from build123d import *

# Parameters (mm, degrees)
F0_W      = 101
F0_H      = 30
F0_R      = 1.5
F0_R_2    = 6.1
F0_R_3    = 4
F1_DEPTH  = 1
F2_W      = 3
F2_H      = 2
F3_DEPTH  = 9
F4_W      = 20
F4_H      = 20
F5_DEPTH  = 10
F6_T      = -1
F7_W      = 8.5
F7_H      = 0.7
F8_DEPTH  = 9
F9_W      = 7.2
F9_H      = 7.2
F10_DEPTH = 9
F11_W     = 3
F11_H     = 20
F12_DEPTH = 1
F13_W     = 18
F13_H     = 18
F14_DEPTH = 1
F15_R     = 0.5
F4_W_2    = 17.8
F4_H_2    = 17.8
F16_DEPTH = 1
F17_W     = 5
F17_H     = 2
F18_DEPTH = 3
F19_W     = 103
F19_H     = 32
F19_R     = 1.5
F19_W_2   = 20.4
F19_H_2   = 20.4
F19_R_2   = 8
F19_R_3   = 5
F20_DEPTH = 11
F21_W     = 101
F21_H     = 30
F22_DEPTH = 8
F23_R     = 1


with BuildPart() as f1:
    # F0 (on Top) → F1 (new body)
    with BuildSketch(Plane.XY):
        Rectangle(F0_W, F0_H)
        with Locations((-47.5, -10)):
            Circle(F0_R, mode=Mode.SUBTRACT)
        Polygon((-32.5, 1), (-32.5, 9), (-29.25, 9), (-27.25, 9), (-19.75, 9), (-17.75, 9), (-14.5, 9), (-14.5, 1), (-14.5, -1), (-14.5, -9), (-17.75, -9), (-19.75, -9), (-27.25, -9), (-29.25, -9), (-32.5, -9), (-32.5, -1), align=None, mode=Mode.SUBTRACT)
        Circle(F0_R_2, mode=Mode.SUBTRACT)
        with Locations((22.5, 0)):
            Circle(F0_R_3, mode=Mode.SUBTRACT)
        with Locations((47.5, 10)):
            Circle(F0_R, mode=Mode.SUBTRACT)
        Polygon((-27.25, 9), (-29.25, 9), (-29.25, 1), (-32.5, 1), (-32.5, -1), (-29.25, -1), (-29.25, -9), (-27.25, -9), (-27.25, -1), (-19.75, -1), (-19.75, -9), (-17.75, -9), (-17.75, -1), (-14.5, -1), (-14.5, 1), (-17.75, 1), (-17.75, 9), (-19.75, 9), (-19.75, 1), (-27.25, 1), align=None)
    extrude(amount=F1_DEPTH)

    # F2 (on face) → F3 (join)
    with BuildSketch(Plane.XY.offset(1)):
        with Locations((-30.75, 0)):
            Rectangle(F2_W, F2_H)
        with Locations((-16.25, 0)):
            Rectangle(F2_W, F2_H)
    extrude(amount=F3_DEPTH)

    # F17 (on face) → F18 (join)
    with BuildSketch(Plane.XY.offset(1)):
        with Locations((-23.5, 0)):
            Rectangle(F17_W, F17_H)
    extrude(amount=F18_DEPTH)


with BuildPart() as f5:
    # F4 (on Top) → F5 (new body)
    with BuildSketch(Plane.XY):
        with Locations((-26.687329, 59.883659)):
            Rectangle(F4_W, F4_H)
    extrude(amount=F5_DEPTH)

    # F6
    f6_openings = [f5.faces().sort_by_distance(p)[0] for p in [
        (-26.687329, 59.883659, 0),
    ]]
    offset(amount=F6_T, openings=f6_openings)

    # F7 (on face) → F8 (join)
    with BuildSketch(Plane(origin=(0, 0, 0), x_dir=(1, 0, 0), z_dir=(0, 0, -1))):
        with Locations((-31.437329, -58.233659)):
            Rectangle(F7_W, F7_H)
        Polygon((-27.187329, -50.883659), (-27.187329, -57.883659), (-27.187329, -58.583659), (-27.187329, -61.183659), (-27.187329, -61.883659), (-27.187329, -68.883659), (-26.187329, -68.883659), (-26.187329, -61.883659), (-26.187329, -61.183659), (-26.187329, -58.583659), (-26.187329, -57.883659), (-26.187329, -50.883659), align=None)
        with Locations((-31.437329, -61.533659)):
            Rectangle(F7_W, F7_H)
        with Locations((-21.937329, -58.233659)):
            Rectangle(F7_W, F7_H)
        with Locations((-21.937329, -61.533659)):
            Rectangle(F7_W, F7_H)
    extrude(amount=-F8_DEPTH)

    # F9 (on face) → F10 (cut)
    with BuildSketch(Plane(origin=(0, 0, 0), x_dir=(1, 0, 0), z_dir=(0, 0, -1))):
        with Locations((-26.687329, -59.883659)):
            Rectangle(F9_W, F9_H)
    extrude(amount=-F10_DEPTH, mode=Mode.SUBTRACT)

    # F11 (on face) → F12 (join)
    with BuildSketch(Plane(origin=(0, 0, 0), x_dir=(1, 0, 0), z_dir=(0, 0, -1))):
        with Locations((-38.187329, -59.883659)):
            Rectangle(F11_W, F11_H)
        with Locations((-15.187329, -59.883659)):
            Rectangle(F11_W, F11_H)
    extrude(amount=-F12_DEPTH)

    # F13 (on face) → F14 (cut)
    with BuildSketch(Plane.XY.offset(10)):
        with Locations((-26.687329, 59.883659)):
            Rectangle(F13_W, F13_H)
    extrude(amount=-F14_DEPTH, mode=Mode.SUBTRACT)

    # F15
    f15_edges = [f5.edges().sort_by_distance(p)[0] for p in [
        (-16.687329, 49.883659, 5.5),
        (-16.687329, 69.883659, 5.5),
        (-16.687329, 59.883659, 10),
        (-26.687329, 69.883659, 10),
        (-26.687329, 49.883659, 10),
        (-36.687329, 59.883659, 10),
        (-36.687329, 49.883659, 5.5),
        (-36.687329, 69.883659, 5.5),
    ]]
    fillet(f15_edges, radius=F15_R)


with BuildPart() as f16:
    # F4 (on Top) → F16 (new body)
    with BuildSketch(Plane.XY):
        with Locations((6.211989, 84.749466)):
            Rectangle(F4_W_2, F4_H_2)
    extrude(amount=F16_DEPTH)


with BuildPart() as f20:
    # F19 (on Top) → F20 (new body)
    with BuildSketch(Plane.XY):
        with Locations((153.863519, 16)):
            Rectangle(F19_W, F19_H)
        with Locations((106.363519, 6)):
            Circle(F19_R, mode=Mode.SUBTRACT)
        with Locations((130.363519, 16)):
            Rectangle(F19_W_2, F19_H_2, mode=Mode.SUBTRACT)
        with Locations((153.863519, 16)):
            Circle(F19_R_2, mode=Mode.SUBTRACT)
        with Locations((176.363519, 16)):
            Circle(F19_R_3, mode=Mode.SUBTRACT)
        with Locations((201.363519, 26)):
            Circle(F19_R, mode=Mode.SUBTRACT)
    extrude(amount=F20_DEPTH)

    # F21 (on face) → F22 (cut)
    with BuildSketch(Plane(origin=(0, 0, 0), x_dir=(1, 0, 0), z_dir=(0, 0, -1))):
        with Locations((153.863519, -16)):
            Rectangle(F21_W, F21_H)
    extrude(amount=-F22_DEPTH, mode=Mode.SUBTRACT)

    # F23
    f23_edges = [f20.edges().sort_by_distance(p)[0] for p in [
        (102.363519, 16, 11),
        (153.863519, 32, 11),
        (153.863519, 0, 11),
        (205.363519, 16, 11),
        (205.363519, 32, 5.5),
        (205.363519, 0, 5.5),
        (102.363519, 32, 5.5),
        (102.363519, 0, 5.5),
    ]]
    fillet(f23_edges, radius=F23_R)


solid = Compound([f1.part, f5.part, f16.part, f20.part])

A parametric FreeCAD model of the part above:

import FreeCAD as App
import Part
import Sketcher
from FreeCAD import Vector
Q = App.Units.Quantity


def edges_at(feature, points):
    """Names of the edges that pass closest to the given points."""
    edges = feature.Shape.Edges
    near = lambda p: min(range(len(edges)), key=lambda i: edges[i].distToShape(Part.Vertex(*p))[0])
    return sorted({f"Edge{near(p) + 1}" for p in points})


def faces_at(feature, points):
    """Names of the faces that lie closest to the given points."""
    faces = feature.Shape.Faces
    near = lambda p: min(range(len(faces)), key=lambda i: faces[i].distToShape(Part.Vertex(*p))[0])
    return sorted({f"Face{near(p) + 1}" for p in points})

doc = App.newDocument("Part")
body = doc.addObject("PartDesign::Body", "Body")

# Sketch on XY plane
sketch1 = doc.addObject("Sketcher::SketchObject", "Sketch")
body.addObject(sketch1)
sketch1.AttachmentSupport = (doc.XY_Plane, [""])
sketch1.MapMode = "FlatFace"
sketch1.addGeometry([
    Part.LineSegment(Vector(-50.5, 15, 0), Vector(-50.5, -15, 0)),  # 0
    Part.LineSegment(Vector(-50.5, -15, 0), Vector(50.5, -15, 0)),  # 1
    Part.LineSegment(Vector(50.5, -15, 0), Vector(50.5, 15, 0)),  # 2
    Part.LineSegment(Vector(50.5, 15, 0), Vector(-50.5, 15, 0)),  # 3
    Part.Circle(Vector(-47.5, -10, 0), Vector(0, 0, 1), 1.5),  # 4
    Part.LineSegment(Vector(-32.5, -9, 0), Vector(-32.5, -1, 0)),  # 5
    Part.LineSegment(Vector(-32.5, -1, 0), Vector(-29.2, -1, 0)),  # 6
    Part.LineSegment(Vector(-29.2, -1, 0), Vector(-29.2, -9, 0)),  # 7
    Part.LineSegment(Vector(-29.2, -9, 0), Vector(-32.5, -9, 0)),  # 8
    Part.LineSegment(Vector(-32.5, 1, 0), Vector(-32.5, 9, 0)),  # 9
    Part.LineSegment(Vector(-32.5, 9, 0), Vector(-29.2, 9, 0)),  # 10
    Part.LineSegment(Vector(-29.2, 9, 0), Vector(-29.2, 1, 0)),  # 11
    Part.LineSegment(Vector(-29.2, 1, 0), Vector(-32.5, 1, 0)),  # 12
    Part.LineSegment(Vector(-14.5, -9, 0), Vector(-17.8, -9, 0)),  # 13
    Part.LineSegment(Vector(-17.8, -9, 0), Vector(-17.8, -1, 0)),  # 14
    Part.LineSegment(Vector(-17.8, -1, 0), Vector(-14.5, -1, 0)),  # 15
    Part.LineSegment(Vector(-14.5, -1, 0), Vector(-14.5, -9, 0)),  # 16
    Part.LineSegment(Vector(-19.8, -9, 0), Vector(-27.2, -9, 0)),  # 17
    Part.LineSegment(Vector(-27.2, -9, 0), Vector(-27.2, -1, 0)),  # 18
    Part.LineSegment(Vector(-27.2, -1, 0), Vector(-19.8, -1, 0)),  # 19
    Part.LineSegment(Vector(-19.8, -1, 0), Vector(-19.8, -9, 0)),  # 20
    Part.LineSegment(Vector(-27.2, 9, 0), Vector(-19.8, 9, 0)),  # 21
    Part.LineSegment(Vector(-19.8, 9, 0), Vector(-19.8, 1, 0)),  # 22
    Part.LineSegment(Vector(-19.8, 1, 0), Vector(-27.2, 1, 0)),  # 23
    Part.LineSegment(Vector(-27.2, 1, 0), Vector(-27.2, 9, 0)),  # 24
    Part.LineSegment(Vector(-17.8, 9, 0), Vector(-14.5, 9, 0)),  # 25
    Part.LineSegment(Vector(-14.5, 9, 0), Vector(-14.5, 1, 0)),  # 26
    Part.LineSegment(Vector(-14.5, 1, 0), Vector(-17.8, 1, 0)),  # 27
    Part.LineSegment(Vector(-17.8, 1, 0), Vector(-17.8, 9, 0)),  # 28
    Part.Circle(Vector(0, 0, 0), Vector(0, 0, 1), 6.1),  # 29
    Part.Circle(Vector(22.5, 0, 0), Vector(0, 0, 1), 4),  # 30
    Part.Circle(Vector(47.5, 10, 0), Vector(0, 0, 1), 1.5),  # 31
], False)
sketch1.addConstraint([
    Sketcher.Constraint("Coincident", 0, 2, 1, 1),
    Sketcher.Constraint("Coincident", 1, 2, 2, 1),
    Sketcher.Constraint("Coincident", 2, 2, 3, 1),
    Sketcher.Constraint("Coincident", 3, 2, 0, 1),
    Sketcher.Constraint("Coincident", 5, 2, 6, 1),
    Sketcher.Constraint("Coincident", 6, 2, 7, 1),
    Sketcher.Constraint("Coincident", 7, 2, 8, 1),
    Sketcher.Constraint("Coincident", 8, 2, 5, 1),
    Sketcher.Constraint("Coincident", 9, 2, 10, 1),
    Sketcher.Constraint("Coincident", 10, 2, 11, 1),
    Sketcher.Constraint("Coincident", 11, 2, 12, 1),
    Sketcher.Constraint("Coincident", 12, 2, 9, 1),
    Sketcher.Constraint("Coincident", 13, 2, 14, 1),
    Sketcher.Constraint("Coincident", 14, 2, 15, 1),
    Sketcher.Constraint("Coincident", 15, 2, 16, 1),
    Sketcher.Constraint("Coincident", 16, 2, 13, 1),
    Sketcher.Constraint("Coincident", 17, 2, 18, 1),
    Sketcher.Constraint("Coincident", 18, 2, 19, 1),
    Sketcher.Constraint("Coincident", 19, 2, 20, 1),
    Sketcher.Constraint("Coincident", 20, 2, 17, 1),
    Sketcher.Constraint("Coincident", 21, 2, 22, 1),
    Sketcher.Constraint("Coincident", 22, 2, 23, 1),
    Sketcher.Constraint("Coincident", 23, 2, 24, 1),
    Sketcher.Constraint("Coincident", 24, 2, 21, 1),
    Sketcher.Constraint("Coincident", 25, 2, 26, 1),
    Sketcher.Constraint("Coincident", 26, 2, 27, 1),
    Sketcher.Constraint("Coincident", 27, 2, 28, 1),
    Sketcher.Constraint("Coincident", 28, 2, 25, 1),
    Sketcher.Constraint("Vertical", 0),
    Sketcher.Constraint("Horizontal", 1),
    Sketcher.Constraint("Vertical", 2),
    Sketcher.Constraint("Horizontal", 3),
    Sketcher.Constraint("Vertical", 5),
    Sketcher.Constraint("Horizontal", 6),
    Sketcher.Constraint("Vertical", 7),
    Sketcher.Constraint("Horizontal", 8),
    Sketcher.Constraint("Vertical", 9),
    Sketcher.Constraint("Horizontal", 10),
    Sketcher.Constraint("Vertical", 11),
    Sketcher.Constraint("Horizontal", 12),
    Sketcher.Constraint("Horizontal", 13),
    Sketcher.Constraint("Vertical", 14),
    Sketcher.Constraint("Horizontal", 15),
    Sketcher.Constraint("Vertical", 16),
    Sketcher.Constraint("Horizontal", 17),
    Sketcher.Constraint("Vertical", 18),
    Sketcher.Constraint("Horizontal", 19),
    Sketcher.Constraint("Vertical", 20),
    Sketcher.Constraint("Horizontal", 21),
    Sketcher.Constraint("Vertical", 22),
    Sketcher.Constraint("Horizontal", 23),
    Sketcher.Constraint("Vertical", 24),
    Sketcher.Constraint("Horizontal", 25),
    Sketcher.Constraint("Vertical", 26),
    Sketcher.Constraint("Horizontal", 27),
    Sketcher.Constraint("Vertical", 28),
    Sketcher.Constraint("Coincident", 29, 3, -1, 1),
    Sketcher.Constraint("Equal", 4, 31),
    Sketcher.Constraint("Symmetric", 4, 3, 31, 3, -1, 1),
    Sketcher.Constraint("Symmetric", 0, 2, 2, 2, -1, 1),
    Sketcher.Constraint("Symmetric", 8, 2, 9, 2, -1),
    Sketcher.Constraint("Symmetric", 6, 2, 11, 2, -1),
    Sketcher.Constraint("Symmetric", 20, 2, 21, 2, -1),
    Sketcher.Constraint("Symmetric", 18, 2, 23, 2, -1),
    Sketcher.Constraint("Symmetric", 16, 2, 25, 2, -1),
    Sketcher.Constraint("Symmetric", 14, 2, 27, 2, -1),
    Sketcher.Constraint("PointOnObject", 30, 3, -1),
    Sketcher.Constraint("Horizontal", 8, 2, 13, 2),
    Sketcher.Constraint("Horizontal", 6, 2, 14, 2),
    Sketcher.Constraint("Horizontal", 16, 2, 17, 2),
    Sketcher.Constraint("Horizontal", 15, 2, 18, 2),
    Sketcher.Constraint("Equal", 12, 13),
    Sketcher.Constraint("Diameter", 4, Q("3 mm")),
    Sketcher.Constraint("Diameter", 30, Q("8 mm")),
    Sketcher.Constraint("Diameter", 29, Q("12.2 mm")),
    Sketcher.Constraint("DistanceX", 1, 1, 1, 2, Q("101 mm")),
    Sketcher.Constraint("DistanceY", 0, 2, 0, 1, Q("30 mm")),
    Sketcher.Constraint("DistanceY", 5, 1, 5, 2, Q("8 mm")),
    Sketcher.Constraint("DistanceX", 17, 2, 17, 1, Q("7.5 mm")),
    Sketcher.Constraint("DistanceY", 4, 3, -1, 1, Q("10 mm")),
    Sketcher.Constraint("DistanceY", 5, 2, -1, 1, Q("1 mm")),
    Sketcher.Constraint("DistanceX", 4, 3, 30, 3, Q("70 mm")),
    Sketcher.Constraint("DistanceX", 30, 3, 31, 3, Q("25 mm")),
    Sketcher.Constraint("DistanceX", 4, 3, 5, 2, Q("15 mm")),
    Sketcher.Constraint("DistanceX", 7, 2, 17, 2, Q("2 mm")),
    Sketcher.Constraint("DistanceX", 19, 2, 14, 2, Q("2 mm")),
    Sketcher.Constraint("DistanceX", 6, 1, 6, 2, Q("3.25 mm")),
])
pad1 = doc.addObject("PartDesign::Pad", "Pad")
body.addObject(pad1)
pad1.Profile = sketch1
pad1.Length = 1

# Sketch on XY plane
sketch2 = doc.addObject("Sketcher::SketchObject", "Sketch001")
body.addObject(sketch2)
sketch2.AttachmentSupport = (doc.XY_Plane, [""])
sketch2.MapMode = "FlatFace"
sketch2.AttachmentOffset = App.Placement(Vector(0, 0, 1), App.Rotation())
sketch2.addGeometry([
    Part.LineSegment(Vector(-32.2, 1, 0), Vector(-32.2, -1, 0)),  # 0
    Part.LineSegment(Vector(-32.2, -1, 0), Vector(-29.2, -1, 0)),  # 1
    Part.LineSegment(Vector(-29.2, -1, 0), Vector(-29.2, 1, 0)),  # 2
    Part.LineSegment(Vector(-29.2, 1, 0), Vector(-32.2, 1, 0)),  # 3
    Part.LineSegment(Vector(-17.8, 1, 0), Vector(-17.8, -1, 0)),  # 4
    Part.LineSegment(Vector(-17.8, -1, 0), Vector(-14.8, -1, 0)),  # 5
    Part.LineSegment(Vector(-14.8, -1, 0), Vector(-14.8, 1, 0)),  # 6
    Part.LineSegment(Vector(-14.8, 1, 0), Vector(-17.8, 1, 0)),  # 7
], False)
sketch2.addConstraint([
    Sketcher.Constraint("Coincident", 0, 2, 1, 1),
    Sketcher.Constraint("Coincident", 1, 2, 2, 1),
    Sketcher.Constraint("Coincident", 2, 2, 3, 1),
    Sketcher.Constraint("Coincident", 3, 2, 0, 1),
    Sketcher.Constraint("Coincident", 4, 2, 5, 1),
    Sketcher.Constraint("Coincident", 5, 2, 6, 1),
    Sketcher.Constraint("Coincident", 6, 2, 7, 1),
    Sketcher.Constraint("Coincident", 7, 2, 4, 1),
    Sketcher.Constraint("Vertical", 0),
    Sketcher.Constraint("Horizontal", 1),
    Sketcher.Constraint("Vertical", 2),
    Sketcher.Constraint("Horizontal", 3),
    Sketcher.Constraint("Vertical", 4),
    Sketcher.Constraint("Horizontal", 5),
    Sketcher.Constraint("Vertical", 6),
    Sketcher.Constraint("Horizontal", 7),
    Sketcher.Constraint("Horizontal", 1, 2, 4, 2),
    Sketcher.Constraint("Horizontal", 3, 2, 6, 2),
    Sketcher.Constraint("Equal", 3, 5),
    Sketcher.Constraint("DistanceX", 1, 1, 1, 2, Q("3 mm")),
    Sketcher.Constraint("DistanceY", 0, 2, 0, 1, Q("2 mm")),
    Sketcher.Constraint("DistanceY", 0, 2, -1, 1, Q("1 mm")),
    Sketcher.Constraint("DistanceX", 1, 2, 4, 2, Q("11.5 mm")),
    Sketcher.Constraint("DistanceX", 0, 2, -1, 1, Q("32.25 mm")),
])
pad2 = doc.addObject("PartDesign::Pad", "Pad001")
body.addObject(pad2)
pad2.Profile = sketch2
pad2.Length = 9

# Sketch on XY plane
sketch3 = doc.addObject("Sketcher::SketchObject", "Sketch002")
body.addObject(sketch3)
sketch3.AttachmentSupport = (doc.XY_Plane, [""])
sketch3.MapMode = "FlatFace"
sketch3.AttachmentOffset = App.Placement(Vector(0, 0, 1), App.Rotation())
sketch3.addGeometry([
    Part.LineSegment(Vector(-26, 1, 0), Vector(-26, -1, 0)),
    Part.LineSegment(Vector(-26, -1, 0), Vector(-21, -1, 0)),
    Part.LineSegment(Vector(-21, -1, 0), Vector(-21, 1, 0)),
    Part.LineSegment(Vector(-21, 1, 0), Vector(-26, 1, 0)),
], False)
sketch3.addConstraint([
    Sketcher.Constraint("Coincident", 0, 2, 1, 1),
    Sketcher.Constraint("Coincident", 1, 2, 2, 1),
    Sketcher.Constraint("Coincident", 2, 2, 3, 1),
    Sketcher.Constraint("Coincident", 3, 2, 0, 1),
    Sketcher.Constraint("Vertical", 0),
    Sketcher.Constraint("Horizontal", 1),
    Sketcher.Constraint("Vertical", 2),
    Sketcher.Constraint("Horizontal", 3),
    Sketcher.Constraint("DistanceX", 1, 1, 1, 2, Q("5 mm")),
    Sketcher.Constraint("DistanceY", 0, 2, 0, 1, Q("2 mm")),
    Sketcher.Constraint("DistanceX", 0, 2, -1, 1, Q("26 mm")),
    Sketcher.Constraint("DistanceY", 0, 2, -1, 1, Q("1 mm")),
])
pad3 = doc.addObject("PartDesign::Pad", "Pad002")
body.addObject(pad3)
pad3.Profile = sketch3
pad3.Length = 3
body2 = doc.addObject("PartDesign::Body", "Body001")

# Sketch on XY plane
sketch4 = doc.addObject("Sketcher::SketchObject", "Sketch003")
body2.addObject(sketch4)
sketch4.AttachmentSupport = (doc.getObject("XY_Plane001"), [""])
sketch4.MapMode = "FlatFace"
sketch4.addGeometry([
    Part.LineSegment(Vector(-37, 70, 0), Vector(-37, 50, 0)),
    Part.LineSegment(Vector(-37, 50, 0), Vector(-17, 50, 0)),
    Part.LineSegment(Vector(-17, 50, 0), Vector(-17, 70, 0)),
    Part.LineSegment(Vector(-17, 70, 0), Vector(-37, 70, 0)),
], False)
sketch4.addConstraint([
    Sketcher.Constraint("Coincident", 0, 2, 1, 1),
    Sketcher.Constraint("Coincident", 1, 2, 2, 1),
    Sketcher.Constraint("Coincident", 2, 2, 3, 1),
    Sketcher.Constraint("Coincident", 3, 2, 0, 1),
    Sketcher.Constraint("Vertical", 0),
    Sketcher.Constraint("Horizontal", 1),
    Sketcher.Constraint("Vertical", 2),
    Sketcher.Constraint("Horizontal", 3),
    Sketcher.Constraint("Equal", 3, 0),
    Sketcher.Constraint("DistanceX", 1, 1, 1, 2, Q("20 mm")),
    Sketcher.Constraint("DistanceX", 0, 2, -1, 1, Q("36.687329 mm")),
    Sketcher.Constraint("DistanceY", -1, 1, 0, 2, Q("49.883659 mm")),
])
pad4 = doc.addObject("PartDesign::Pad", "Pad003")
body2.addObject(pad4)
pad4.Profile = sketch4
pad4.Length = 10
doc.recompute()

thickness = doc.addObject("PartDesign::Thickness", "Thickness")
body2.addObject(thickness)
thickness.Base = (pad4, faces_at(pad4, [(-26.687, 59.884, 0)]))
thickness.Value = 1
thickness.Reversed = True
thickness.Join = "Arc"

# Sketch on XY plane
sketch5 = doc.addObject("Sketcher::SketchObject", "Sketch004")
body2.addObject(sketch5)
sketch5.AttachmentSupport = (doc.getObject("XY_Plane001"), [""])
sketch5.MapMode = "FlatFace"
sketch5.addGeometry([
    Part.LineSegment(Vector(-35.7, 57.9, 0), Vector(-35.7, 58.6, 0)),  # 0
    Part.LineSegment(Vector(-35.7, 58.6, 0), Vector(-27.2, 58.6, 0)),  # 1
    Part.LineSegment(Vector(-27.2, 58.6, 0), Vector(-27.2, 61.2, 0)),  # 2
    Part.LineSegment(Vector(-27.2, 61.2, 0), Vector(-35.7, 61.2, 0)),  # 3
    Part.LineSegment(Vector(-35.7, 61.2, 0), Vector(-35.7, 61.9, 0)),  # 4
    Part.LineSegment(Vector(-35.7, 61.9, 0), Vector(-27.2, 61.9, 0)),  # 5
    Part.LineSegment(Vector(-27.2, 61.9, 0), Vector(-27.2, 68.9, 0)),  # 6
    Part.LineSegment(Vector(-27.2, 68.9, 0), Vector(-26.2, 68.9, 0)),  # 7
    Part.LineSegment(Vector(-26.2, 68.9, 0), Vector(-26.2, 61.9, 0)),  # 8
    Part.LineSegment(Vector(-26.2, 61.9, 0), Vector(-17.7, 61.9, 0)),  # 9
    Part.LineSegment(Vector(-17.7, 61.9, 0), Vector(-17.7, 61.2, 0)),  # 10
    Part.LineSegment(Vector(-17.7, 61.2, 0), Vector(-26.2, 61.2, 0)),  # 11
    Part.LineSegment(Vector(-26.2, 61.2, 0), Vector(-26.2, 58.6, 0)),  # 12
    Part.LineSegment(Vector(-26.2, 58.6, 0), Vector(-17.7, 58.6, 0)),  # 13
    Part.LineSegment(Vector(-17.7, 58.6, 0), Vector(-17.7, 57.9, 0)),  # 14
    Part.LineSegment(Vector(-17.7, 57.9, 0), Vector(-26.2, 57.9, 0)),  # 15
    Part.LineSegment(Vector(-26.2, 57.9, 0), Vector(-26.2, 50.9, 0)),  # 16
    Part.LineSegment(Vector(-26.2, 50.9, 0), Vector(-27.2, 50.9, 0)),  # 17
    Part.LineSegment(Vector(-27.2, 50.9, 0), Vector(-27.2, 57.9, 0)),  # 18
    Part.LineSegment(Vector(-27.2, 57.9, 0), Vector(-35.7, 57.9, 0)),  # 19
], False)
sketch5.addConstraint([
    Sketcher.Constraint("Coincident", 0, 2, 1, 1),
    Sketcher.Constraint("Coincident", 1, 2, 2, 1),
    Sketcher.Constraint("Coincident", 2, 2, 3, 1),
    Sketcher.Constraint("Coincident", 3, 2, 4, 1),
    Sketcher.Constraint("Coincident", 4, 2, 5, 1),
    Sketcher.Constraint("Coincident", 5, 2, 6, 1),
    Sketcher.Constraint("Coincident", 6, 2, 7, 1),
    Sketcher.Constraint("Coincident", 7, 2, 8, 1),
    Sketcher.Constraint("Coincident", 8, 2, 9, 1),
    Sketcher.Constraint("Coincident", 9, 2, 10, 1),
    Sketcher.Constraint("Coincident", 10, 2, 11, 1),
    Sketcher.Constraint("Coincident", 11, 2, 12, 1),
    Sketcher.Constraint("Coincident", 12, 2, 13, 1),
    Sketcher.Constraint("Coincident", 13, 2, 14, 1),
    Sketcher.Constraint("Coincident", 14, 2, 15, 1),
    Sketcher.Constraint("Coincident", 15, 2, 16, 1),
    Sketcher.Constraint("Coincident", 16, 2, 17, 1),
    Sketcher.Constraint("Coincident", 17, 2, 18, 1),
    Sketcher.Constraint("Coincident", 18, 2, 19, 1),
    Sketcher.Constraint("Coincident", 19, 2, 0, 1),
    Sketcher.Constraint("Vertical", 0),
    Sketcher.Constraint("Horizontal", 1),
    Sketcher.Constraint("Vertical", 2),
    Sketcher.Constraint("Horizontal", 3),
    Sketcher.Constraint("Vertical", 4),
    Sketcher.Constraint("Horizontal", 5),
    Sketcher.Constraint("Vertical", 6),
    Sketcher.Constraint("Horizontal", 7),
    Sketcher.Constraint("Vertical", 8),
    Sketcher.Constraint("Horizontal", 9),
    Sketcher.Constraint("Vertical", 10),
    Sketcher.Constraint("Horizontal", 11),
    Sketcher.Constraint("Vertical", 12),
    Sketcher.Constraint("Horizontal", 13),
    Sketcher.Constraint("Vertical", 14),
    Sketcher.Constraint("Horizontal", 15),
    Sketcher.Constraint("Vertical", 16),
    Sketcher.Constraint("Horizontal", 17),
    Sketcher.Constraint("Vertical", 18),
    Sketcher.Constraint("Horizontal", 19),
    Sketcher.Constraint("Horizontal", 5, 2, 8, 2),
    Sketcher.Constraint("Horizontal", 3, 2, 10, 2),
    Sketcher.Constraint("Horizontal", 1, 2, 12, 2),
    Sketcher.Constraint("Horizontal", 15, 2, 18, 2),
    Sketcher.Constraint("Vertical", 0, 2, 3, 2),
    Sketcher.Constraint("Vertical", 2, 2, 5, 2),
    Sketcher.Constraint("Vertical", 8, 2, 11, 2),
    Sketcher.Constraint("Vertical", 10, 2, 13, 2),
    Sketcher.Constraint("Vertical", 12, 2, 15, 2),
    Sketcher.Constraint("Vertical", 6, 2, 17, 2),
    Sketcher.Constraint("Equal", 5, 9),
    Sketcher.Constraint("Equal", 0, 4),
    Sketcher.Constraint("Equal", 8, 16),
    Sketcher.Constraint("DistanceX", 7, 1, 7, 2, Q("1 mm")),
    Sketcher.Constraint("DistanceY", 6, 1, 6, 2, Q("7 mm")),
    Sketcher.Constraint("DistanceX", 1, 1, 1, 2, Q("8.5 mm")),
    Sketcher.Constraint("DistanceY", 0, 1, 0, 2, Q("0.7 mm")),
    Sketcher.Constraint("DistanceY", 2, 1, 2, 2, Q("2.6 mm")),
    Sketcher.Constraint("DistanceX", 0, 2, -1, 1, Q("35.687329 mm")),
    Sketcher.Constraint("DistanceY", -1, 1, 0, 2, Q("58.583659 mm")),
])
pad5 = doc.addObject("PartDesign::Pad", "Pad004")
body2.addObject(pad5)
pad5.Profile = sketch5
pad5.Length = 9

# Sketch on XY plane
sketch6 = doc.addObject("Sketcher::SketchObject", "Sketch005")
body2.addObject(sketch6)
sketch6.AttachmentSupport = (doc.getObject("XY_Plane001"), [""])
sketch6.MapMode = "FlatFace"
sketch6.addGeometry([
    Part.LineSegment(Vector(-30, 56, 0), Vector(-30, 63, 0)),
    Part.LineSegment(Vector(-30, 63, 0), Vector(-23, 63, 0)),
    Part.LineSegment(Vector(-23, 63, 0), Vector(-23, 56, 0)),
    Part.LineSegment(Vector(-23, 56, 0), Vector(-30, 56, 0)),
], False)
sketch6.addConstraint([
    Sketcher.Constraint("Coincident", 0, 2, 1, 1),
    Sketcher.Constraint("Coincident", 1, 2, 2, 1),
    Sketcher.Constraint("Coincident", 2, 2, 3, 1),
    Sketcher.Constraint("Coincident", 3, 2, 0, 1),
    Sketcher.Constraint("Vertical", 0),
    Sketcher.Constraint("Horizontal", 1),
    Sketcher.Constraint("Vertical", 2),
    Sketcher.Constraint("Horizontal", 3),
    Sketcher.Constraint("Equal", 3, 0),
    Sketcher.Constraint("DistanceX", 1, 1, 1, 2, Q("7.2 mm")),
    Sketcher.Constraint("DistanceX", 0, 2, -1, 1, Q("30.287329 mm")),
    Sketcher.Constraint("DistanceY", -1, 1, 0, 2, Q("63.483659 mm")),
])
pocket1 = doc.addObject("PartDesign::Pocket", "Pocket")
body2.addObject(pocket1)
pocket1.Profile = sketch6
pocket1.Length = 9
pocket1.Reversed = True

# Sketch on XY plane
sketch7 = doc.addObject("Sketcher::SketchObject", "Sketch006")
body2.addObject(sketch7)
sketch7.AttachmentSupport = (doc.getObject("XY_Plane001"), [""])
sketch7.MapMode = "FlatFace"
sketch7.addGeometry([
    Part.LineSegment(Vector(-39.7, 49.9, 0), Vector(-39.7, 69.9, 0)),  # 0
    Part.LineSegment(Vector(-39.7, 69.9, 0), Vector(-36.7, 69.9, 0)),  # 1
    Part.LineSegment(Vector(-36.7, 69.9, 0), Vector(-36.7, 49.9, 0)),  # 2
    Part.LineSegment(Vector(-36.7, 49.9, 0), Vector(-39.7, 49.9, 0)),  # 3
    Part.LineSegment(Vector(-16.7, 49.9, 0), Vector(-16.7, 69.9, 0)),  # 4
    Part.LineSegment(Vector(-16.7, 69.9, 0), Vector(-13.7, 69.9, 0)),  # 5
    Part.LineSegment(Vector(-13.7, 69.9, 0), Vector(-13.7, 49.9, 0)),  # 6
    Part.LineSegment(Vector(-13.7, 49.9, 0), Vector(-16.7, 49.9, 0)),  # 7
], False)
sketch7.addConstraint([
    Sketcher.Constraint("Coincident", 0, 2, 1, 1),
    Sketcher.Constraint("Coincident", 1, 2, 2, 1),
    Sketcher.Constraint("Coincident", 2, 2, 3, 1),
    Sketcher.Constraint("Coincident", 3, 2, 0, 1),
    Sketcher.Constraint("Coincident", 4, 2, 5, 1),
    Sketcher.Constraint("Coincident", 5, 2, 6, 1),
    Sketcher.Constraint("Coincident", 6, 2, 7, 1),
    Sketcher.Constraint("Coincident", 7, 2, 4, 1),
    Sketcher.Constraint("Vertical", 0),
    Sketcher.Constraint("Horizontal", 1),
    Sketcher.Constraint("Vertical", 2),
    Sketcher.Constraint("Horizontal", 3),
    Sketcher.Constraint("Vertical", 4),
    Sketcher.Constraint("Horizontal", 5),
    Sketcher.Constraint("Vertical", 6),
    Sketcher.Constraint("Horizontal", 7),
    Sketcher.Constraint("Horizontal", 1, 2, 4, 2),
    Sketcher.Constraint("Horizontal", 3, 2, 6, 2),
    Sketcher.Constraint("Equal", 3, 5),
    Sketcher.Constraint("DistanceX", 1, 1, 1, 2, Q("3 mm")),
    Sketcher.Constraint("DistanceY", 0, 1, 0, 2, Q("20 mm")),
    Sketcher.Constraint("DistanceX", 1, 2, 4, 2, Q("20 mm")),
    Sketcher.Constraint("DistanceX", 0, 2, -1, 1, Q("39.687329 mm")),
    Sketcher.Constraint("DistanceY", -1, 1, 0, 2, Q("69.883659 mm")),
])
pad6 = doc.addObject("PartDesign::Pad", "Pad005")
body2.addObject(pad6)
pad6.Profile = sketch7
pad6.Length = 1

# Sketch on XY plane
sketch8 = doc.addObject("Sketcher::SketchObject", "Sketch007")
body2.addObject(sketch8)
sketch8.AttachmentSupport = (doc.getObject("XY_Plane001"), [""])
sketch8.MapMode = "FlatFace"
sketch8.AttachmentOffset = App.Placement(Vector(0, 0, 10), App.Rotation())
sketch8.addGeometry([
    Part.LineSegment(Vector(-36, 69, 0), Vector(-36, 51, 0)),
    Part.LineSegment(Vector(-36, 51, 0), Vector(-18, 51, 0)),
    Part.LineSegment(Vector(-18, 51, 0), Vector(-18, 69, 0)),
    Part.LineSegment(Vector(-18, 69, 0), Vector(-36, 69, 0)),
], False)
sketch8.addConstraint([
    Sketcher.Constraint("Coincident", 0, 2, 1, 1),
    Sketcher.Constraint("Coincident", 1, 2, 2, 1),
    Sketcher.Constraint("Coincident", 2, 2, 3, 1),
    Sketcher.Constraint("Coincident", 3, 2, 0, 1),
    Sketcher.Constraint("Vertical", 0),
    Sketcher.Constraint("Horizontal", 1),
    Sketcher.Constraint("Vertical", 2),
    Sketcher.Constraint("Horizontal", 3),
    Sketcher.Constraint("Equal", 3, 0),
    Sketcher.Constraint("DistanceX", 1, 1, 1, 2, Q("18 mm")),
    Sketcher.Constraint("DistanceX", 0, 2, -1, 1, Q("35.687329 mm")),
    Sketcher.Constraint("DistanceY", -1, 1, 0, 2, Q("50.883659 mm")),
])
pocket2 = doc.addObject("PartDesign::Pocket", "Pocket001")
body2.addObject(pocket2)
pocket2.Profile = sketch8
pocket2.Length = 1
doc.recompute()

fillet = doc.addObject("PartDesign::Fillet", "Fillet")
body2.addObject(fillet)
fillet.Base = (pocket2, edges_at(pocket2, [
    (-16.687, 49.884, 5.5),
    (-16.687, 69.884, 5.5),
    (-16.687, 59.884, 10),
    (-26.687, 69.884, 10),
    (-26.687, 49.884, 10),
    (-36.687, 59.884, 10),
    (-36.687, 49.884, 5.5),
    (-36.687, 69.884, 5.5),
]))
fillet.Radius = 0.5
body3 = doc.addObject("PartDesign::Body", "Body002")

# Sketch on XY plane
sketch9 = doc.addObject("Sketcher::SketchObject", "Sketch008")
body3.addObject(sketch9)
sketch9.AttachmentSupport = (doc.getObject("XY_Plane002"), [""])
sketch9.MapMode = "FlatFace"
sketch9.addGeometry([
    Part.LineSegment(Vector(-3, 94, 0), Vector(-3, 76, 0)),
    Part.LineSegment(Vector(-3, 76, 0), Vector(15, 76, 0)),
    Part.LineSegment(Vector(15, 76, 0), Vector(15, 94, 0)),
    Part.LineSegment(Vector(15, 94, 0), Vector(-3, 94, 0)),
], False)
sketch9.addConstraint([
    Sketcher.Constraint("Coincident", 0, 2, 1, 1),
    Sketcher.Constraint("Coincident", 1, 2, 2, 1),
    Sketcher.Constraint("Coincident", 2, 2, 3, 1),
    Sketcher.Constraint("Coincident", 3, 2, 0, 1),
    Sketcher.Constraint("Vertical", 0),
    Sketcher.Constraint("Horizontal", 1),
    Sketcher.Constraint("Vertical", 2),
    Sketcher.Constraint("Horizontal", 3),
    Sketcher.Constraint("Equal", 3, 0),
    Sketcher.Constraint("DistanceX", 1, 1, 1, 2, Q("17.8 mm")),
    Sketcher.Constraint("DistanceX", 0, 2, -1, 1, Q("2.688011 mm")),
    Sketcher.Constraint("DistanceY", -1, 1, 0, 2, Q("75.849466 mm")),
])
pad7 = doc.addObject("PartDesign::Pad", "Pad006")
body3.addObject(pad7)
pad7.Profile = sketch9
pad7.Length = 1
body4 = doc.addObject("PartDesign::Body", "Body003")

# Sketch on XY plane
sketch10 = doc.addObject("Sketcher::SketchObject", "Sketch009")
body4.addObject(sketch10)
sketch10.AttachmentSupport = (doc.getObject("XY_Plane003"), [""])
sketch10.MapMode = "FlatFace"
sketch10.addGeometry([
    Part.LineSegment(Vector(102.4, 32, 0), Vector(102.4, 0, 0)),  # 0
    Part.LineSegment(Vector(102.4, 0, 0), Vector(205.4, 0, 0)),  # 1
    Part.LineSegment(Vector(205.4, 0, 0), Vector(205.4, 32, 0)),  # 2
    Part.LineSegment(Vector(205.4, 32, 0), Vector(102.4, 32, 0)),  # 3
    Part.Circle(Vector(106.4, 6, 0), Vector(0, 0, 1), 1.5),  # 4
    Part.LineSegment(Vector(140.6, 5.8, 0), Vector(120.2, 5.8, 0)),  # 5
    Part.LineSegment(Vector(120.2, 5.8, 0), Vector(120.2, 26.2, 0)),  # 6
    Part.LineSegment(Vector(120.2, 26.2, 0), Vector(140.6, 26.2, 0)),  # 7
    Part.LineSegment(Vector(140.6, 26.2, 0), Vector(140.6, 5.8, 0)),  # 8
    Part.Circle(Vector(153.9, 16, 0), Vector(0, 0, 1), 8),  # 9
    Part.Circle(Vector(176.4, 16, 0), Vector(0, 0, 1), 5),  # 10
    Part.Circle(Vector(201.4, 26, 0), Vector(0, 0, 1), 1.5),  # 11
], False)
sketch10.addConstraint([
    Sketcher.Constraint("Coincident", 0, 2, 1, 1),
    Sketcher.Constraint("Coincident", 1, 2, 2, 1),
    Sketcher.Constraint("Coincident", 2, 2, 3, 1),
    Sketcher.Constraint("Coincident", 3, 2, 0, 1),
    Sketcher.Constraint("Coincident", 5, 2, 6, 1),
    Sketcher.Constraint("Coincident", 6, 2, 7, 1),
    Sketcher.Constraint("Coincident", 7, 2, 8, 1),
    Sketcher.Constraint("Coincident", 8, 2, 5, 1),
    Sketcher.Constraint("Vertical", 0),
    Sketcher.Constraint("Horizontal", 1),
    Sketcher.Constraint("Vertical", 2),
    Sketcher.Constraint("Horizontal", 3),
    Sketcher.Constraint("Horizontal", 5),
    Sketcher.Constraint("Vertical", 6),
    Sketcher.Constraint("Horizontal", 7),
    Sketcher.Constraint("Vertical", 8),
    Sketcher.Constraint("Equal", 4, 11),
    Sketcher.Constraint("PointOnObject", 0, 2, -1),
    Sketcher.Constraint("Horizontal", 9, 3, 10, 3),
    Sketcher.Constraint("Equal", 7, 6),
    Sketcher.Constraint("Diameter", 4, Q("3 mm")),
    Sketcher.Constraint("Diameter", 9, Q("16 mm")),
    Sketcher.Constraint("Diameter", 10, Q("10 mm")),
    Sketcher.Constraint("DistanceX", 1, 1, 1, 2, Q("103 mm")),
    Sketcher.Constraint("DistanceY", 0, 2, 0, 1, Q("32 mm")),
    Sketcher.Constraint("DistanceX", 5, 2, 5, 1, Q("20.4 mm")),
    Sketcher.Constraint("DistanceY", -1, 1, 4, 3, Q("6 mm")),
    Sketcher.Constraint("DistanceY", -1, 1, 9, 3, Q("16 mm")),
    Sketcher.Constraint("DistanceY", -1, 1, 11, 3, Q("26 mm")),
    Sketcher.Constraint("DistanceX", 4, 3, 10, 3, Q("70 mm")),
    Sketcher.Constraint("DistanceX", 10, 3, 11, 3, Q("25 mm")),
    Sketcher.Constraint("DistanceX", 0, 2, 4, 3, Q("4 mm")),
    Sketcher.Constraint("DistanceY", -1, 1, 5, 2, Q("5.8 mm")),
    Sketcher.Constraint("DistanceX", 4, 3, 9, 3, Q("47.5 mm")),
    Sketcher.Constraint("DistanceX", 4, 3, 5, 2, Q("13.8 mm")),
    Sketcher.Constraint("DistanceX", -1, 1, 4, 3, Q("106.363519 mm")),
])
pad8 = doc.addObject("PartDesign::Pad", "Pad007")
body4.addObject(pad8)
pad8.Profile = sketch10
pad8.Length = 11

# Sketch on XY plane
sketch11 = doc.addObject("Sketcher::SketchObject", "Sketch010")
body4.addObject(sketch11)
sketch11.AttachmentSupport = (doc.getObject("XY_Plane003"), [""])
sketch11.MapMode = "FlatFace"
sketch11.addGeometry([
    Part.LineSegment(Vector(103, 1, 0), Vector(103, 31, 0)),
    Part.LineSegment(Vector(103, 31, 0), Vector(204, 31, 0)),
    Part.LineSegment(Vector(204, 31, 0), Vector(204, 1, 0)),
    Part.LineSegment(Vector(204, 1, 0), Vector(103, 1, 0)),
], False)
sketch11.addConstraint([
    Sketcher.Constraint("Coincident", 0, 2, 1, 1),
    Sketcher.Constraint("Coincident", 1, 2, 2, 1),
    Sketcher.Constraint("Coincident", 2, 2, 3, 1),
    Sketcher.Constraint("Coincident", 3, 2, 0, 1),
    Sketcher.Constraint("Vertical", 0),
    Sketcher.Constraint("Horizontal", 1),
    Sketcher.Constraint("Vertical", 2),
    Sketcher.Constraint("Horizontal", 3),
    Sketcher.Constraint("DistanceX", 1, 1, 1, 2, Q("101 mm")),
    Sketcher.Constraint("DistanceY", 0, 1, 0, 2, Q("30 mm")),
    Sketcher.Constraint("DistanceY", -1, 1, 0, 2, Q("31 mm")),
    Sketcher.Constraint("DistanceX", -1, 1, 0, 2, Q("103.363519 mm")),
])
pocket3 = doc.addObject("PartDesign::Pocket", "Pocket002")
body4.addObject(pocket3)
pocket3.Profile = sketch11
pocket3.Length = 8
pocket3.Reversed = True
doc.recompute()

fillet2 = doc.addObject("PartDesign::Fillet", "Fillet001")
body4.addObject(fillet2)
fillet2.Base = (pocket3, edges_at(pocket3, [
    (102.364, 16, 11),
    (153.864, 32, 11),
    (153.864, 0, 11),
    (205.364, 16, 11),
    (205.364, 32, 5.5),
    (205.364, 0, 5.5),
    (102.364, 32, 5.5),
    (102.364, 0, 5.5),
]))
fillet2.Radius = 1

doc.recompute()
